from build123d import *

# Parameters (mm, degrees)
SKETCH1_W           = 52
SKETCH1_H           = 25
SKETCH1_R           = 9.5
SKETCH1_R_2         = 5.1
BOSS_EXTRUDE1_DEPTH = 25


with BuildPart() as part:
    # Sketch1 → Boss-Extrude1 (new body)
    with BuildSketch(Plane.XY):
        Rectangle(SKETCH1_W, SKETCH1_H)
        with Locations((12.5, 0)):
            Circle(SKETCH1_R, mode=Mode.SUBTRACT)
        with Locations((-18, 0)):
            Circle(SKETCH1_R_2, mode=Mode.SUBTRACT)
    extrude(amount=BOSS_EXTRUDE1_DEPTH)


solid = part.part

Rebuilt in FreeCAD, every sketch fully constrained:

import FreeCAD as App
import Part
import Sketcher
from FreeCAD import Vector
Q = App.Units.Quantity

doc = App.newDocument("Part")
body = doc.addObject("PartDesign::Body", "Body")

sketch1 = body.newObject("Sketcher::SketchObject", "Sketch")
sketch1.AttachmentSupport = (doc.getObject("XY_Plane"), [""])
sketch1.MapMode = "FlatFace"
sketch1.addGeometry(Part.LineSegment(Vector(-26, 12.5, 0), Vector(-26, -12.5, 0)), False)
sketch1.addGeometry(Part.LineSegment(Vector(-26, -12.5, 0), Vector(26, -12.5, 0)), False)
sketch1.addGeometry(Part.LineSegment(Vector(26, -12.5, 0), Vector(26, 12.5, 0)), False)
sketch1.addGeometry(Part.LineSegment(Vector(26, 12.5, 0), Vector(-26, 12.5, 0)), False)
sketch1.addGeometry(Part.Circle(Vector(-18, 0, 0), Vector(0, 0, 1), 5.1), False)
sketch1.addGeometry(Part.Circle(Vector(12.5, 0, 0), Vector(0, 0, 1), 9.5), False)
sketch1.addConstraint(Sketcher.Constraint("Coincident", 0, 2, 1, 1))
sketch1.addConstraint(Sketcher.Constraint("Coincident", 1, 2, 2, 1))
sketch1.addConstraint(Sketcher.Constraint("Coincident", 2, 2, 3, 1))
sketch1.addConstraint(Sketcher.Constraint("Coincident", 3, 2, 0, 1))
sketch1.addConstraint(Sketcher.Constraint("Vertical", 0))
sketch1.addConstraint(Sketcher.Constraint("Horizontal", 1))
sketch1.addConstraint(Sketcher.Constraint("Vertical", 2))
sketch1.addConstraint(Sketcher.Constraint("Horizontal", 3))
sketch1.addConstraint(Sketcher.Constraint("Symmetric", 0, 2, 2, 2, -1, 1))
sketch1.addConstraint(Sketcher.Constraint("PointOnObject", 4, 3, -1))
sketch1.addConstraint(Sketcher.Constraint("PointOnObject", 5, 3, -1))
sketch1.addConstraint(Sketcher.Constraint("Diameter", 5, Q("19 mm")))
sketch1.addConstraint(Sketcher.Constraint("Diameter", 4, Q("10.2 mm")))
sketch1.addConstraint(Sketcher.Constraint("DistanceX", 1, 1, 1, 2, Q("52 mm")))
sketch1.addConstraint(Sketcher.Constraint("DistanceY", 0, 2, 0, 1, Q("25 mm")))
sketch1.addConstraint(Sketcher.Constraint("DistanceX", 4, 3, -1, 1, Q("18 mm")))
sketch1.addConstraint(Sketcher.Constraint("DistanceX", -1, 1, 5, 3, Q("12.5 mm")))
pad1 = body.newObject("PartDesign::Pad", "Pad")
pad1.Profile = sketch1
pad1.Length = 25

doc.recompute()
